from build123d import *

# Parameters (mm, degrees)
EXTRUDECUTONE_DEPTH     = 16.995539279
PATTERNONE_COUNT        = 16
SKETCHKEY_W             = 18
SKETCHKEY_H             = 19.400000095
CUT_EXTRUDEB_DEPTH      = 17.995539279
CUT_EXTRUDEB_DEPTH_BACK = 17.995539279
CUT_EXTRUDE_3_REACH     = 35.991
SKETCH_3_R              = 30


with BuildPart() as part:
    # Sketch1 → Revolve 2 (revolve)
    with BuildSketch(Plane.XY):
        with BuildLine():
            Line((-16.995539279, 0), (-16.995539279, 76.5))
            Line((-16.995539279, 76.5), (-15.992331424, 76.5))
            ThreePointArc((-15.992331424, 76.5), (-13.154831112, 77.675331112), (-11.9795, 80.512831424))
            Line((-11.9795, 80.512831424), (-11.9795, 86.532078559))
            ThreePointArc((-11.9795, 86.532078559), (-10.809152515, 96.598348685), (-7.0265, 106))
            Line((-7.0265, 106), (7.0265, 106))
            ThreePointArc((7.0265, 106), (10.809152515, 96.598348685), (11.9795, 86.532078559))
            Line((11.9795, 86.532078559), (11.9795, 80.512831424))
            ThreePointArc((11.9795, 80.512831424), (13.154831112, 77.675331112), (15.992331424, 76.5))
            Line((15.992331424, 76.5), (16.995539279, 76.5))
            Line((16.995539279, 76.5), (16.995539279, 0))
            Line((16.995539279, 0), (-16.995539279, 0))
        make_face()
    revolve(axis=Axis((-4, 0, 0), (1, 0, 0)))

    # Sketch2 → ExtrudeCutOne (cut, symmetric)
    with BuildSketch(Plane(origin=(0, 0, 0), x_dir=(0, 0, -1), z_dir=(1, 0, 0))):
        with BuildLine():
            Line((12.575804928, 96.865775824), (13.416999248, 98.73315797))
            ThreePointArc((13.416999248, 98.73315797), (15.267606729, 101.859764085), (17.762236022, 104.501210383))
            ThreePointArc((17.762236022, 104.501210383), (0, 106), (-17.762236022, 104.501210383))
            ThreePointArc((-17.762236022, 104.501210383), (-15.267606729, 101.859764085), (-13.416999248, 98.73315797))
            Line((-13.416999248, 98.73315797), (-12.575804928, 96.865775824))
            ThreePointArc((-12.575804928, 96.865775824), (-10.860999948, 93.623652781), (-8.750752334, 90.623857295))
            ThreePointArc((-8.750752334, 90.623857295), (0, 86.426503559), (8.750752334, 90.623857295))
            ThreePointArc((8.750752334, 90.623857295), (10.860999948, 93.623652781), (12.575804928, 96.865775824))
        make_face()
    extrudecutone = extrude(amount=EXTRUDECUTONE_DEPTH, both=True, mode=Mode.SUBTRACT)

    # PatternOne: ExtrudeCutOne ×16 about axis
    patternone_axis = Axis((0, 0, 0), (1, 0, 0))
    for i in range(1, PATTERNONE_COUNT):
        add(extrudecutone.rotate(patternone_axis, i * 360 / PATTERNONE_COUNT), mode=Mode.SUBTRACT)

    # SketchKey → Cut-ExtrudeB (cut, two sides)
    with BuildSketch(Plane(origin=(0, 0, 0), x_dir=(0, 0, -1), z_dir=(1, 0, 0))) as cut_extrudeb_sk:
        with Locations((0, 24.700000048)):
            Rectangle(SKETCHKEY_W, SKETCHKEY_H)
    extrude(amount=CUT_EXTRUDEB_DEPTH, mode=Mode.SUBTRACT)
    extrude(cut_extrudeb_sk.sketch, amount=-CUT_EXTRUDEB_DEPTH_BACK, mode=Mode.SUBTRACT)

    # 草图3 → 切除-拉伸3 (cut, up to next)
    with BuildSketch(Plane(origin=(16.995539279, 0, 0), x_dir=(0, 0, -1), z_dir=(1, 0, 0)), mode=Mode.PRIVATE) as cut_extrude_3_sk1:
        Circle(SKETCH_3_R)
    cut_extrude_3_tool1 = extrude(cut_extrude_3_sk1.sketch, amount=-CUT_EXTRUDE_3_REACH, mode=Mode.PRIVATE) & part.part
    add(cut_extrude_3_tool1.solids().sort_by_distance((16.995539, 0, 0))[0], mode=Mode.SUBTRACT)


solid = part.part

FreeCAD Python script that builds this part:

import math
import FreeCAD as App
import Part
import Sketcher
from FreeCAD import Vector
Q = App.Units.Quantity


def add_polygon(sketch, points):
    """Adds a closed chain of lines whose ends are joined by coincident constraints."""
    first, n = sketch.GeometryCount, len(points)
    for a, b in zip(points, points[1:] + points[:1]):
        sketch.addGeometry(Part.LineSegment(App.Vector(*a, 0), App.Vector(*b, 0)), False)
    for i in range(n):
        sketch.addConstraint(Sketcher.Constraint("Coincident", first + i, 2, first + (i + 1) % n, 1))

doc = App.newDocument("Part")
params = doc.addObject("Spreadsheet::Sheet", "Params")
for row, (alias, value) in enumerate([
    ("sketch1_radius", "38.1 mm"),
    ("sketch1_height", "76.5 mm"),
    ("revolution_angle", "360 deg"),
    ("sketch2_radius", "106 mm"),
    ("pocket1_length", "33.991079 mm"),
    ("sketch3_height", "18 mm"),
    ("sketch3_width", "19.4 mm"),
    ("sketch4_diameter", "60 mm"),
], start=1):
    params.set(f"A{row}", alias)
    params.set(f"B{row}", "=" + value)
    params.setAlias(f"B{row}", alias)

body = doc.addObject("PartDesign::Body", "Body")

sketch1 = body.newObject("Sketcher::SketchObject", "Sketch")
sketch1.AttachmentSupport = (doc.getObject("XY_Plane"), [""])
sketch1.MapMode = "FlatFace"
sketch1.addGeometry([
    Part.LineSegment(Vector(-17, 76.5, 0), Vector(-17, 0, 0)),
    Part.LineSegment(Vector(-17, 0, 0), Vector(17, 0, 0)),
    Part.LineSegment(Vector(17, 0, 0), Vector(17, 76.5, 0)),
    Part.LineSegment(Vector(17, 76.5, 0), Vector(16, 76.5, 0)),
    Part.ArcOfCircle(Part.Circle(Vector(16, 80.5, 0), Vector(0, 0, 1), 4), math.radians(180), math.radians(270)),
    Part.LineSegment(Vector(12, 80.5, 0), Vector(12, 86.5, 0)),
    Part.ArcOfCircle(Part.Circle(Vector(-26.1, 87.2, 0), Vector(0, 0, 1), 38.1), math.radians(-1), math.radians(30)),
    Part.LineSegment(Vector(7, 106, 0), Vector(-7, 106, 0)),
    Part.ArcOfCircle(Part.Circle(Vector(26.1, 87.2, 0), Vector(0, 0, 1), 38.1), math.radians(150), math.radians(181)),
    Part.LineSegment(Vector(-12, 86.5, 0), Vector(-12, 80.5, 0)),
    Part.ArcOfCircle(Part.Circle(Vector(-16, 80.5, 0), Vector(0, 0, 1), 4), math.radians(-90), math.radians(0)),
    Part.LineSegment(Vector(-16, 76.5, 0), Vector(-17, 76.5, 0)),
], False)
sketch1.addConstraint([
    Sketcher.Constraint("Coincident", 0, 2, 1, 1),
    Sketcher.Constraint("Coincident", 1, 2, 2, 1),
    Sketcher.Constraint("Coincident", 2, 2, 3, 1),
    Sketcher.Constraint("Tangent", 3, 2, 4, 2),
    Sketcher.Constraint("Tangent", 4, 1, 5, 1),
    Sketcher.Constraint("Coincident", 5, 2, 6, 1),
    Sketcher.Constraint("Coincident", 6, 2, 7, 1),
    Sketcher.Constraint("Coincident", 7, 2, 8, 1),
    Sketcher.Constraint("Coincident", 8, 2, 9, 1),
    Sketcher.Constraint("Tangent", 9, 2, 10, 2),
    Sketcher.Constraint("Tangent", 10, 1, 11, 1),
    Sketcher.Constraint("Coincident", 11, 2, 0, 1),
    Sketcher.Constraint("Vertical", 0),
    Sketcher.Constraint("Horizontal", 1),
    Sketcher.Constraint("Vertical", 2),
    Sketcher.Constraint("Horizontal", 3),
    Sketcher.Constraint("Vertical", 5),
    Sketcher.Constraint("Horizontal", 7),
    Sketcher.Constraint("Vertical", 9),
    Sketcher.Constraint("Horizontal", 11),
    Sketcher.Constraint("Equal", 6, 8),
    Sketcher.Constraint("Equal", 4, 10),
    Sketcher.Constraint("Symmetric", 0, 2, 1, 2, -1, 1),
    Sketcher.Constraint("Symmetric", 6, 3, 8, 3, -2),
    Sketcher.Constraint("Symmetric", 4, 3, 10, 3, -2),
    Sketcher.Constraint("Radius", 6, 38.1),
    Sketcher.Constraint("DistanceY", 0, 2, 0, 1, 76.5),
    Sketcher.Constraint("DistanceY", -1, 1, 6, 2, 106.0),
    Sketcher.Constraint("DistanceX", 7, 2, 7, 1, 14.053),
    Sketcher.Constraint("Radius", 4, 4.012831),
    Sketcher.Constraint("DistanceX", 6, 2, 5, 2, 4.953),
    Sketcher.Constraint("DistanceX", 1, 1, 1, 2, 33.991079),
    Sketcher.Constraint("DistanceX", 6, 3, 4, 3, 42.106901),
])
sketch1.setExpression("Constraints[25]", "Params.sketch1_radius")
sketch1.setExpression("Constraints[26]", "Params.sketch1_height")
revolution = body.newObject("PartDesign::Revolution", "Revolution")
revolution.Profile = sketch1
revolution.ReferenceAxis = (sketch1, ["H_Axis"])
revolution.setExpression("Angle", "Params.revolution_angle")

sketch2 = body.newObject("Sketcher::SketchObject", "Sketch001")
sketch2.AttachmentSupport = (doc.getObject("YZ_Plane"), [""])
sketch2.MapMode = "FlatFace"
sketch2.addGeometry([
    Part.LineSegment(Vector(96.9, -12.6, 0), Vector(98.7, -13.4, 0)),
    Part.ArcOfCircle(Part.Circle(Vector(92, -28.3, 0), Vector(0, 0, 1), 16.4), math.radians(40), math.radians(66)),
    Part.ArcOfCircle(Part.Circle(Vector(0, 0, 0), Vector(0, 0, 1), 106), math.radians(-9.65), math.radians(9.65)),
    Part.ArcOfCircle(Part.Circle(Vector(92, 28.3, 0), Vector(0, 0, 1), 16.4), math.radians(-66), math.radians(-40)),
    Part.LineSegment(Vector(98.7, 13.4, 0), Vector(96.9, 12.6, 0)),
    Part.ArcOfCircle(Part.Circle(Vector(108.8, -13.9, 0), Vector(0, 0, 1), 29), math.radians(114.25), math.radians(128.75)),
    Part.ArcOfCircle(Part.Circle(Vector(97.6, 0, 0), Vector(0, 0, 1), 11.2), math.radians(129), math.radians(231)),
    Part.ArcOfCircle(Part.Circle(Vector(108.8, 13.9, 0), Vector(0, 0, 1), 29), math.radians(-128.75), math.radians(-114.25)),
], False)
sketch2.addConstraint([
    Sketcher.Constraint("Tangent", 0, 2, 1, 2),
    Sketcher.Constraint("Coincident", 1, 1, 2, 1),
    Sketcher.Constraint("Coincident", 2, 2, 3, 2),
    Sketcher.Constraint("Tangent", 3, 1, 4, 1),
    Sketcher.Constraint("Tangent", 4, 2, 5, 1),
    Sketcher.Constraint("Tangent", 5, 2, 6, 1),
    Sketcher.Constraint("Tangent", 6, 2, 7, 1),
    Sketcher.Constraint("Tangent", 7, 2, 0, 1),
    Sketcher.Constraint("Coincident", 2, 3, -1, 1),
    Sketcher.Constraint("Equal", 1, 3),
    Sketcher.Constraint("Equal", 5, 7),
    Sketcher.Constraint("Symmetric", 1, 3, 3, 3, -1),
    Sketcher.Constraint("Symmetric", 5, 3, 7, 3, -1),
    Sketcher.Constraint("Radius", 2, 106.0),
    Sketcher.Constraint("Angle", 0, Q("-24.25 deg")),
    Sketcher.Constraint("DistanceY", 0, 2, -1, 1, 13.416999),
    Sketcher.Constraint("Radius", 1, 16.371283),
    Sketcher.Constraint("Radius", 5, 29.004575),
    Sketcher.Constraint("Radius", 6, 11.220575),
    Sketcher.Constraint("DistanceX", -1, 1, 5, 3, 108.778502),
    Sketcher.Constraint("DistanceY", 1, 1, 7, 3, 31.631702),
])
sketch2.setExpression("Constraints[13]", "Params.sketch2_radius")
pocket1 = body.newObject("PartDesign::Pocket", "Pocket")
pocket1.Profile = sketch2
pocket1.setExpression("Length", "Params.pocket1_length")
pocket1.Midplane = True
doc.recompute()

polarpattern = body.newObject("PartDesign::PolarPattern", "PolarPattern")
polarpattern.Originals = [pocket1]
polarpattern.Axis = (doc.getObject("X_Axis"), [""])
polarpattern.Angle = 360
polarpattern.Occurrences = 16
body.Tip = polarpattern

sketch3 = body.newObject("Sketcher::SketchObject", "Sketch002")
sketch3.AttachmentSupport = (doc.getObject("YZ_Plane"), [""])
sketch3.MapMode = "FlatFace"
add_polygon(sketch3, [(34, 9), (15, 9), (15, -9), (34, -9)])
sketch3.addConstraint([
    Sketcher.Constraint("Horizontal", 0),
    Sketcher.Constraint("Vertical", 1),
    Sketcher.Constraint("Horizontal", 2),
    Sketcher.Constraint("Vertical", 3),
    Sketcher.Constraint("DistanceY", 1, 2, 1, 1, 18.0),
    Sketcher.Constraint("DistanceX", 0, 2, 0, 1, 19.4),
    Sketcher.Constraint("DistanceX", -1, 1, 0, 2, 15.0),
    Sketcher.Constraint("DistanceY", -1, 1, 0, 2, 9.0),
])
sketch3.setExpression("Constraints[8]", "Params.sketch3_height")
sketch3.setExpression("Constraints[9]", "Params.sketch3_width")
pocket2 = body.newObject("PartDesign::Pocket", "Pocket001")
pocket2.Profile = sketch3
pocket2.Type = "ThroughAll"
pocket2.Midplane = True

sketch4 = body.newObject("Sketcher::SketchObject", "Sketch003")
sketch4.AttachmentSupport = (doc.getObject("YZ_Plane"), [""])
sketch4.MapMode = "FlatFace"
sketch4.AttachmentOffset = App.Placement(Vector(0, 0, 16.995539), App.Rotation())
sketch4.addGeometry(Part.Circle(Vector(0, 0, 0), Vector(0, 0, 1), 30), False)
sketch4.addConstraint([
    Sketcher.Constraint("Coincident", 0, 3, -1, 1),
    Sketcher.Constraint("Diameter", 0, 60.0),
])
sketch4.setExpression("Constraints[1]", "Params.sketch4_diameter")
pocket3 = body.newObject("PartDesign::Pocket", "Pocket002")
pocket3.Profile = sketch4
pocket3.Type = "UpToFirst"

doc.recompute()
